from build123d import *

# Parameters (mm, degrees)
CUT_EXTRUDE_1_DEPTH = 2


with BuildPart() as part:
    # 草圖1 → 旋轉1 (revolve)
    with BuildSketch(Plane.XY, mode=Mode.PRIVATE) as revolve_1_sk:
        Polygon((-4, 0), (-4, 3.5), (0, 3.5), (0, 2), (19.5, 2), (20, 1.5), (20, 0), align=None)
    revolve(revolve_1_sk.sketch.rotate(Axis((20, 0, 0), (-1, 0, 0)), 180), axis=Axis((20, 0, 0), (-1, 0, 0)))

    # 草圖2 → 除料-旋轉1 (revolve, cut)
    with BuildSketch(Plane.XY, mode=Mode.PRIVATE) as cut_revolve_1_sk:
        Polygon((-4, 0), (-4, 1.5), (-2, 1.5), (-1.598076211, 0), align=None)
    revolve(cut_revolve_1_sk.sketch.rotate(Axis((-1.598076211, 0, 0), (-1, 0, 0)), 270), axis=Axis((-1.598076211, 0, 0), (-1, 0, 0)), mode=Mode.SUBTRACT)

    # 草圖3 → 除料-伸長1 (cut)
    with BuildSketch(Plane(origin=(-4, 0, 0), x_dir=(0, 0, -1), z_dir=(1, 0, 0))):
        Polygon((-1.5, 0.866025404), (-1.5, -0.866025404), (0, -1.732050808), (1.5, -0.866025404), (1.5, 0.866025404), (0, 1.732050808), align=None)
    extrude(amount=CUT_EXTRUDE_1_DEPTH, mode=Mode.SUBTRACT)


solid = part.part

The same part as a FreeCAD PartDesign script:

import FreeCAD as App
import Part
import Sketcher
from FreeCAD import Vector
Q = App.Units.Quantity


def add_polygon(sketch, points):
    """Adds a closed chain of lines whose ends are joined by coincident constraints."""
    first, n = sketch.GeometryCount, len(points)
    for a, b in zip(points, points[1:] + points[:1]):
        sketch.addGeometry(Part.LineSegment(App.Vector(*a, 0), App.Vector(*b, 0)), False)
    for i in range(n):
        sketch.addConstraint(Sketcher.Constraint("Coincident", first + i, 2, first + (i + 1) % n, 1))

doc = App.newDocument("Part")
body = doc.addObject("PartDesign::Body", "Body")

sketch1 = doc.addObject("Sketcher::SketchObject", "Sketch")
body.addObject(sketch1)
sketch1.AttachmentSupport = (doc.XY_Plane, [""])
sketch1.MapMode = "FlatFace"
add_polygon(sketch1, [(-4, 3.5), (-4, 0), (20, 0), (20, 1.5), (19.5, 2), (0, 2), (0, 3.5)])
sketch1.addConstraint(Sketcher.Constraint("Vertical", 0))
sketch1.addConstraint(Sketcher.Constraint("Horizontal", 1))
sketch1.addConstraint(Sketcher.Constraint("Vertical", 2))
sketch1.addConstraint(Sketcher.Constraint("Horizontal", 4))
sketch1.addConstraint(Sketcher.Constraint("Vertical", 5))
sketch1.addConstraint(Sketcher.Constraint("Horizontal", 6))
sketch1.addConstraint(Sketcher.Constraint("PointOnObject", 0, 2, -1))
sketch1.addConstraint(Sketcher.Constraint("PointOnObject", 4, 2, -2))
sketch1.addConstraint(Sketcher.Constraint("Equal", 2, 5))
sketch1.addConstraint(Sketcher.Constraint("DistanceX", 1, 1, 1, 2, 24.0))
sketch1.addConstraint(Sketcher.Constraint("DistanceX", 6, 2, 6, 1, 4.0))
sketch1.addConstraint(Sketcher.Constraint("Angle", 3, Q("135 deg")))
sketch1.addConstraint(Sketcher.Constraint("DistanceX", 4, 2, 4, 1, 19.5))
sketch1.addConstraint(Sketcher.Constraint("DistanceY", 0, 2, 0, 1, 3.5))
revolution = doc.addObject("PartDesign::Revolution", "Revolution")
body.addObject(revolution)
revolution.Profile = sketch1
revolution.ReferenceAxis = (sketch1, ["H_Axis"])
revolution.Angle = 360

sketch2 = doc.addObject("Sketcher::SketchObject", "Sketch001")
body.addObject(sketch2)
sketch2.AttachmentSupport = (doc.XY_Plane, [""])
sketch2.MapMode = "FlatFace"
add_polygon(sketch2, [(-4, 1.5), (-4, 0), (-1.598076, 0), (-2, 1.5)])
sketch2.addConstraint(Sketcher.Constraint("Vertical", 0))
sketch2.addConstraint(Sketcher.Constraint("Horizontal", 1))
sketch2.addConstraint(Sketcher.Constraint("Horizontal", 3))
sketch2.addConstraint(Sketcher.Constraint("PointOnObject", 0, 2, -1))
sketch2.addConstraint(Sketcher.Constraint("DistanceX", 3, 2, 3, 1, 2.0))
sketch2.addConstraint(Sketcher.Constraint("Angle", 2, Q("105 deg")))
sketch2.addConstraint(Sketcher.Constraint("DistanceY", 0, 2, 0, 1, 1.5))
sketch2.addConstraint(Sketcher.Constraint("DistanceX", 0, 2, -1, 1, 4.0))
groove = doc.addObject("PartDesign::Groove", "Groove")
body.addObject(groove)
groove.Profile = sketch2
groove.ReferenceAxis = (sketch2, ["H_Axis"])
groove.Angle = 360

sketch3 = doc.addObject("Sketcher::SketchObject", "Sketch002")
body.addObject(sketch3)
sketch3.AttachmentSupport = (doc.YZ_Plane, [""])
sketch3.MapMode = "FlatFace"
sketch3.AttachmentOffset = App.Placement(Vector(0, 0, -4), App.Rotation())
add_polygon(sketch3, [(0.866025, 1.5), (-0.866025, 1.5), (-1.732051, 0), (-0.866025, -1.5), (0.866025, -1.5), (1.732051, 0)])
sketch3.addConstraint(Sketcher.Constraint("Horizontal", 0))
sketch3.addConstraint(Sketcher.Constraint("Horizontal", 3))
sketch3.addConstraint(Sketcher.Constraint("Symmetric", 0, 2, 3, 2, -1, 1))
sketch3.addConstraint(Sketcher.Constraint("Symmetric", 1, 2, 4, 2, -1, 1))
sketch3.addConstraint(Sketcher.Constraint("PointOnObject", 1, 2, -1))
sketch3.addConstraint(Sketcher.Constraint("Parallel", 2, 5))
sketch3.addConstraint(Sketcher.Constraint("Vertical", 0, 2, 2, 2))
sketch3.addConstraint(Sketcher.Constraint("Angle", 1, Q("-120 deg")))
sketch3.addConstraint(Sketcher.Constraint("DistanceY", 2, 2, 0, 2, 3.0))
sketch3.addConstraint(Sketcher.Constraint("DistanceX", 0, 2, 0, 1, 1.732051))
pocket1 = doc.addObject("PartDesign::Pocket", "Pocket")
body.addObject(pocket1)
pocket1.Profile = sketch3
pocket1.Length = 2
pocket1.Reversed = True

doc.recompute()
